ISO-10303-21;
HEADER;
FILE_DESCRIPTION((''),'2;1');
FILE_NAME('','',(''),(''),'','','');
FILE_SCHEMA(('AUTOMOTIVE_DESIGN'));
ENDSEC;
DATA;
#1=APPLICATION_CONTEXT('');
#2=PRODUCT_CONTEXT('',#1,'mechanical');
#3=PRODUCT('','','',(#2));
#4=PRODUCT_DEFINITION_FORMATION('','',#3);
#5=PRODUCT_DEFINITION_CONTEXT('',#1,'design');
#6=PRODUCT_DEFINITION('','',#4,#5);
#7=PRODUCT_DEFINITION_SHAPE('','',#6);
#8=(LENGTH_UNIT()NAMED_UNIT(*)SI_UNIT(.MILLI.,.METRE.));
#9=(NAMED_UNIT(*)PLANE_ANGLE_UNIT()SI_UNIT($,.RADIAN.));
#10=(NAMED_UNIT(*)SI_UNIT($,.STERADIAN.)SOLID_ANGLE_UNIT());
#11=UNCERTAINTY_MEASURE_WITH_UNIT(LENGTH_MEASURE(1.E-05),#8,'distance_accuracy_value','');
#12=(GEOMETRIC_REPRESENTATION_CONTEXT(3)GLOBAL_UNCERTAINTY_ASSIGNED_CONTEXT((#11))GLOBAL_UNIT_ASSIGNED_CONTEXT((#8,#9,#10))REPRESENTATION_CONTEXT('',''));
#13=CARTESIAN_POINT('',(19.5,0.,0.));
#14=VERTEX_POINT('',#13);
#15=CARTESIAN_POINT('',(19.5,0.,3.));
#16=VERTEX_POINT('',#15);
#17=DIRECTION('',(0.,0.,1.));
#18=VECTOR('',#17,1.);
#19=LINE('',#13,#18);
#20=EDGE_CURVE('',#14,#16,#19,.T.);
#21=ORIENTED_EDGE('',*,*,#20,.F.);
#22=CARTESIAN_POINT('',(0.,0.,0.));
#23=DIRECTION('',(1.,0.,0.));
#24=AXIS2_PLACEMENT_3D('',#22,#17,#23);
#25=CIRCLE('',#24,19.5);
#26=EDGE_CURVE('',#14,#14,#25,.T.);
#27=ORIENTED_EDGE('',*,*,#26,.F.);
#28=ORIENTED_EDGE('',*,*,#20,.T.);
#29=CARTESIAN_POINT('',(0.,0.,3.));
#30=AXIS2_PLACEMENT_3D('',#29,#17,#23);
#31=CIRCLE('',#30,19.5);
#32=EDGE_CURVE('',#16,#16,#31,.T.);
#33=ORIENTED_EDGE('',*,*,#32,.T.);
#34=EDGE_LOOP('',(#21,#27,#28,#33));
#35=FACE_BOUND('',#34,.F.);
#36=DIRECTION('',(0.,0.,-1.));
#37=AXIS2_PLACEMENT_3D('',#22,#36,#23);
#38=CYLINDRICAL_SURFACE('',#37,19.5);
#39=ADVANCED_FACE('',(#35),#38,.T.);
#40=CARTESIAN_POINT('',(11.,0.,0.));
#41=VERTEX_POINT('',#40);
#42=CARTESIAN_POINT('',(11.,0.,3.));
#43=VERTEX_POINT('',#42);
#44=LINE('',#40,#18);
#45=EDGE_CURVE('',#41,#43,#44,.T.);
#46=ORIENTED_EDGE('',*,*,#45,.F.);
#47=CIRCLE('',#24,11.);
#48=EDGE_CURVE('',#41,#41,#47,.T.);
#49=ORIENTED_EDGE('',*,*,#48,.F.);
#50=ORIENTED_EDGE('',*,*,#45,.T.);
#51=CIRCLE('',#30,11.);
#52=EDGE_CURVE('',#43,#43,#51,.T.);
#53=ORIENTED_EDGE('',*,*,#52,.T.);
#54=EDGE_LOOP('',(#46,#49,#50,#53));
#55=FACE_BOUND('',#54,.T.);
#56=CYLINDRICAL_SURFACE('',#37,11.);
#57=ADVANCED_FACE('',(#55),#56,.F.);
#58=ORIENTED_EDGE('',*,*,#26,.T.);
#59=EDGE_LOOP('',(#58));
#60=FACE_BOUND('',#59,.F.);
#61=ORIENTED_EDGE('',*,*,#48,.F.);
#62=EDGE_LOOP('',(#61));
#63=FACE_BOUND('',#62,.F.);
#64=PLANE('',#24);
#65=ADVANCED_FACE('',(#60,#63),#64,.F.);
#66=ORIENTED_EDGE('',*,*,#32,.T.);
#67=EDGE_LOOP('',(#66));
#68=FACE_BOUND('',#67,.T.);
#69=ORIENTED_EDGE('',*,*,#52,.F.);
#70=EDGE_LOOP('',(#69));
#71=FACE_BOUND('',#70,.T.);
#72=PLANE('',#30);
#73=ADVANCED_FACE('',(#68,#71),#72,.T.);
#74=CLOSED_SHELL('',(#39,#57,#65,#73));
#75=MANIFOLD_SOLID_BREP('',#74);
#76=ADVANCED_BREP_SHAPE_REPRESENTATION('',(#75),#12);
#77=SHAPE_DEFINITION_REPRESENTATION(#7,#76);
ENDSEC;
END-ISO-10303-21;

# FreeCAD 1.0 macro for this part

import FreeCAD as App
import Part
import Sketcher
from FreeCAD import Vector
Q = App.Units.Quantity

doc = App.newDocument("Part")
body = doc.addObject("PartDesign::Body", "Body")

sketch1 = doc.addObject("Sketcher::SketchObject", "Sketch")
body.addObject(sketch1)
sketch1.AttachmentSupport = (doc.XY_Plane, [""])
sketch1.MapMode = "FlatFace"
sketch1.addGeometry(Part.Circle(Vector(0, 0, 0), Vector(0, 0, 1), 20), False)
sketch1.addGeometry(Part.Circle(Vector(0, 0, 0), Vector(0, 0, 1), 11), False)
sketch1.addConstraint(Sketcher.Constraint("Coincident", 0, 3, -1, 1))
sketch1.addConstraint(Sketcher.Constraint("Coincident", 1, 3, -1, 1))
sketch1.addConstraint(Sketcher.Constraint("Diameter", 0, Q("39 mm")))
sketch1.addConstraint(Sketcher.Constraint("Diameter", 1, Q("22 mm")))
pad1 = doc.addObject("PartDesign::Pad", "Pad")
body.addObject(pad1)
pad1.Profile = sketch1
pad1.Length = 3

doc.recompute()
